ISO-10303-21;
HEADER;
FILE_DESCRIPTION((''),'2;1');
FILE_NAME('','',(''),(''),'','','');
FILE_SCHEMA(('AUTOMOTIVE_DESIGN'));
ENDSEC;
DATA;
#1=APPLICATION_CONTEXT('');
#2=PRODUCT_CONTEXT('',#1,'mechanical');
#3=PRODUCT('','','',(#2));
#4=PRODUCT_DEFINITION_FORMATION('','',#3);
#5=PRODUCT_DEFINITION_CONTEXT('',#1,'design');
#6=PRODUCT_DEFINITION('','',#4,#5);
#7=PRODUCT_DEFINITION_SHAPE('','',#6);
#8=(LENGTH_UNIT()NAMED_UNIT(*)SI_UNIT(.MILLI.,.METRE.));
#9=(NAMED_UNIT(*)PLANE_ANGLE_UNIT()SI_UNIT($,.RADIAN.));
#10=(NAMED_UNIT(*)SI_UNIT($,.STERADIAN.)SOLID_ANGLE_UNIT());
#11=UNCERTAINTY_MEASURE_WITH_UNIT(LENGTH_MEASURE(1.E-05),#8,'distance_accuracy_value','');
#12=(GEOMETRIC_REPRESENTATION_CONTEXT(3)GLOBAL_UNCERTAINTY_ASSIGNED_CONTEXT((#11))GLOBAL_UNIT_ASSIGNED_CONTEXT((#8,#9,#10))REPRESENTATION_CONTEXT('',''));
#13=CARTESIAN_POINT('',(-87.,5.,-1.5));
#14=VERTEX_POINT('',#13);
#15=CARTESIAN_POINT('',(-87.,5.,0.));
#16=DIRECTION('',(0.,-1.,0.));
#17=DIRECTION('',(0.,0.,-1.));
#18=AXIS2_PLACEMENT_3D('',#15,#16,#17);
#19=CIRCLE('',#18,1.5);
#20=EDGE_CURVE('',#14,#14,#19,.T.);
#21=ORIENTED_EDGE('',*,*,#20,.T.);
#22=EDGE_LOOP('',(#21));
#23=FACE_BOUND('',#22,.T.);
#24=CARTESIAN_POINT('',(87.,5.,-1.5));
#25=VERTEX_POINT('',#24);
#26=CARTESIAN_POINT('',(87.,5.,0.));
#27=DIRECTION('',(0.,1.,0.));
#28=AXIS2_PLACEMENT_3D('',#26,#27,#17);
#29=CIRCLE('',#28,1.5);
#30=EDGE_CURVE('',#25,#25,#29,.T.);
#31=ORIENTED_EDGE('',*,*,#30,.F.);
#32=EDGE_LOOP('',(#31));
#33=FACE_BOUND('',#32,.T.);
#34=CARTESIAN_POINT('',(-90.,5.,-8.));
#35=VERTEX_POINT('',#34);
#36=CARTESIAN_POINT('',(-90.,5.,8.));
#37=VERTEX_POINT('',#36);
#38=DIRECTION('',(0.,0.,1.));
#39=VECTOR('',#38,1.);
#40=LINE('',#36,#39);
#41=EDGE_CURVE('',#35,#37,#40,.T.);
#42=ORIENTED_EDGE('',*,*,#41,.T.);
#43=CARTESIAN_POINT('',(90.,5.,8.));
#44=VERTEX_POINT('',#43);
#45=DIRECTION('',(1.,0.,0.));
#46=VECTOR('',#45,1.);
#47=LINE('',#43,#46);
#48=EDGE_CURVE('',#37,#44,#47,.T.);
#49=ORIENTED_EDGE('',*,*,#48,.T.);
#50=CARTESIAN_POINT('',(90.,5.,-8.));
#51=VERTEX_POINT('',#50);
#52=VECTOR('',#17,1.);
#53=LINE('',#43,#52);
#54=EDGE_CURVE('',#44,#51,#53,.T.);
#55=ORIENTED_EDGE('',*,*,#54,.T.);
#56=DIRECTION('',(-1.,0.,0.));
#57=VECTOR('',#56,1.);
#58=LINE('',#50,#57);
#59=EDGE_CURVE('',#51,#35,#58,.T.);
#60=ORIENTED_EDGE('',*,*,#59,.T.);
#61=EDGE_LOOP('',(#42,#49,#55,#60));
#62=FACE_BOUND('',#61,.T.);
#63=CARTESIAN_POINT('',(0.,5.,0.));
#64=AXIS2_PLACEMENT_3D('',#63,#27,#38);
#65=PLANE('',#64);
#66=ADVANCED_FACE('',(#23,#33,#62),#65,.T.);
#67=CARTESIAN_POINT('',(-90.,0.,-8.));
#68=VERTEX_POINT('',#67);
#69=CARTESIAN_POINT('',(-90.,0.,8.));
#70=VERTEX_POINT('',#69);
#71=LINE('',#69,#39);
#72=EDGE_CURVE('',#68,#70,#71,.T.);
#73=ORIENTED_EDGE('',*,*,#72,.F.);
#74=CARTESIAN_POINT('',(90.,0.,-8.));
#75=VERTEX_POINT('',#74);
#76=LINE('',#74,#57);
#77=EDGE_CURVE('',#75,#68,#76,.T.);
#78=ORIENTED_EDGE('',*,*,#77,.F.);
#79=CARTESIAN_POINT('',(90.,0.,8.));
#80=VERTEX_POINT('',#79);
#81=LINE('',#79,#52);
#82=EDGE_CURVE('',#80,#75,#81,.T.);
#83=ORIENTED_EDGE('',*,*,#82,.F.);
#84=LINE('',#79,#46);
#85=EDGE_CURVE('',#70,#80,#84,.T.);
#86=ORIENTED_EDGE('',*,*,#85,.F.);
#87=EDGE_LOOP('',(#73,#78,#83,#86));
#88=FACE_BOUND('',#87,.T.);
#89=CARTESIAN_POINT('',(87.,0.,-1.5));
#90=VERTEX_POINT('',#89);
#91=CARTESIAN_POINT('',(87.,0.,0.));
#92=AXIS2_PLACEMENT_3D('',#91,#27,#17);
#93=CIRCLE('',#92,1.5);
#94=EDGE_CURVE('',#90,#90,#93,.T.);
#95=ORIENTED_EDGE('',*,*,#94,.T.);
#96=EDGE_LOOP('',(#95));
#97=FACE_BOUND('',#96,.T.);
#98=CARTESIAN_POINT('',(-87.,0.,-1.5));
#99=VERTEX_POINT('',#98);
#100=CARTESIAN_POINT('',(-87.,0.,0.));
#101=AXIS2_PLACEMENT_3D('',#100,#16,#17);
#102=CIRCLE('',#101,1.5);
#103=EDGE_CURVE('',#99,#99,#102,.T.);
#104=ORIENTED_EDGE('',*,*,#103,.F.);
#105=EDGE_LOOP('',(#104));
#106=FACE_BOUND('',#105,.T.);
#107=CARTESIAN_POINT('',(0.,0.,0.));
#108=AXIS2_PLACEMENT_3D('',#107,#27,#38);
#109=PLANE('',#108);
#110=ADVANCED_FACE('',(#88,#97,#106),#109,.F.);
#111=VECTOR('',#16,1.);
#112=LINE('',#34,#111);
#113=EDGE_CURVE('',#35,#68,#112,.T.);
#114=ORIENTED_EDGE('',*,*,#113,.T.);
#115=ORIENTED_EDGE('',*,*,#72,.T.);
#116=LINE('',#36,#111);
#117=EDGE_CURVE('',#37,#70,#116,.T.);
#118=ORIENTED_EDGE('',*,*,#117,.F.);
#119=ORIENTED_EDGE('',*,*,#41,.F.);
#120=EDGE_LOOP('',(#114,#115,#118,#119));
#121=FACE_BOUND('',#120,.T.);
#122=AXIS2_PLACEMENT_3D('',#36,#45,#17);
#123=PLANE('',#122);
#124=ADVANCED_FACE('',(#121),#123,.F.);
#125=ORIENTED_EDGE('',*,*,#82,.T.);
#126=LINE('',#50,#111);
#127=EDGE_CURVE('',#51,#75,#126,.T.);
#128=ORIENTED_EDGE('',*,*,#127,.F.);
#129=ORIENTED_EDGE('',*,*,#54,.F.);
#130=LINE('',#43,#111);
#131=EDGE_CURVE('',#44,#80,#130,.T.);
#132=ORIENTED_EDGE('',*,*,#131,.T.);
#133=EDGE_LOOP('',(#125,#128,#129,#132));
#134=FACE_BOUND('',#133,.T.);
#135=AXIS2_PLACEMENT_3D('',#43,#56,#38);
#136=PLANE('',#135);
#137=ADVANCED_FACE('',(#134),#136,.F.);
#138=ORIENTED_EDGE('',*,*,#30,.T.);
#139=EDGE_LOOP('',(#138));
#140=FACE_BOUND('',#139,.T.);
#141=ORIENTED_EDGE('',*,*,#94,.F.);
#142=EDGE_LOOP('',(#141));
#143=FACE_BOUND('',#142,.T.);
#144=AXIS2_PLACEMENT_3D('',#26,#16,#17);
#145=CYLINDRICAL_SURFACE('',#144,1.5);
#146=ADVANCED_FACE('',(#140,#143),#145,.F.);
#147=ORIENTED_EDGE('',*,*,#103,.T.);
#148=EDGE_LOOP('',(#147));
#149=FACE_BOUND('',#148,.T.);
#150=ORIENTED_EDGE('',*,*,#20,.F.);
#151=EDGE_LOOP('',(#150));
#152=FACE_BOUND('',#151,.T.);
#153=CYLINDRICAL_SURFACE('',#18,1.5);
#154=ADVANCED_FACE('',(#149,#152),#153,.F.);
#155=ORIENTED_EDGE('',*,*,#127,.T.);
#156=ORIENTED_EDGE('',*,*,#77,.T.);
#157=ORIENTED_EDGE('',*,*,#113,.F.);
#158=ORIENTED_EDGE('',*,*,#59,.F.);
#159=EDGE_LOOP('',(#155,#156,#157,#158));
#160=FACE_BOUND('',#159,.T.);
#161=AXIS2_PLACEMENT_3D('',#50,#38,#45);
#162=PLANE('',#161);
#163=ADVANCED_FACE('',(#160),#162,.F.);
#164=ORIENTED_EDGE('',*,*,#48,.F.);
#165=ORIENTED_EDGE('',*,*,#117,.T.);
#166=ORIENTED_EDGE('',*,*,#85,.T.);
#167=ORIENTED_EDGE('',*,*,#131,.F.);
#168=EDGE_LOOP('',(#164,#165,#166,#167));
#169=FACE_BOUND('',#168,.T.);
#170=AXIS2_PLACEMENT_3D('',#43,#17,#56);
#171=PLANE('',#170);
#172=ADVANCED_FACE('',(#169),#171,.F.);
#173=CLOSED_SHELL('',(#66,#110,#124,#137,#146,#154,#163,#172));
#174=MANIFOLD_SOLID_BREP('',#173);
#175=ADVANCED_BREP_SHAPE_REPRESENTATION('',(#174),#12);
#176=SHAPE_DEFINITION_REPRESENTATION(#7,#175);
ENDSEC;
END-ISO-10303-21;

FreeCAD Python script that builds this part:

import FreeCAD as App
import Part
import Sketcher
Q = App.Units.Quantity

doc = App.newDocument("Part")
params = doc.addObject("Spreadsheet::Sheet", "Params")
for row, (alias, value) in enumerate([
    ("sketch1_width", "180 mm"),
    ("sketch1_height", "16 mm"),
    ("pad1_length", "5 mm"),
    ("sketch2_diameter", "3 mm"),
], start=1):
    params.set(f"A{row}", alias)
    params.set(f"B{row}", "=" + value)
    params.setAlias(f"B{row}", alias)

body = doc.addObject("PartDesign::Body", "Body")

sketch1 = body.newObject("Sketcher::SketchObject", "Sketch")
sketch1.AttachmentSupport = (doc.getObject("XZ_Plane"), [""])
sketch1.MapMode = "FlatFace"
sketch1.addGeometry([
    Part.LineSegment(App.Vector(-90, -8, 0), App.Vector(-90, 8, 0)),
    Part.LineSegment(App.Vector(-90, 8, 0), App.Vector(90, 8, 0)),
    Part.LineSegment(App.Vector(90, 8, 0), App.Vector(90, -8, 0)),
    Part.LineSegment(App.Vector(90, -8, 0), App.Vector(-90, -8, 0)),
], False)
sketch1.addConstraint([
    Sketcher.Constraint("Coincident", 0, 2, 1, 1),
    Sketcher.Constraint("Coincident", 1, 2, 2, 1),
    Sketcher.Constraint("Coincident", 2, 2, 3, 1),
    Sketcher.Constraint("Coincident", 3, 2, 0, 1),
    Sketcher.Constraint("Vertical", 0),
    Sketcher.Constraint("Horizontal", 1),
    Sketcher.Constraint("Vertical", 2),
    Sketcher.Constraint("Horizontal", 3),
    Sketcher.Constraint("Symmetric", 0, 2, 2, 2, -1, 1),
    Sketcher.Constraint("DistanceX", 1, 1, 1, 2, Q("180 mm")),
    Sketcher.Constraint("DistanceY", 0, 1, 0, 2, Q("16 mm")),
])
sketch1.setExpression("Constraints[9]", "Params.sketch1_width")
sketch1.setExpression("Constraints[10]", "Params.sketch1_height")
pad1 = body.newObject("PartDesign::Pad", "Pad")
pad1.Profile = sketch1
pad1.setExpression("Length", "Params.pad1_length")
pad1.Reversed = True

sketch2 = body.newObject("Sketcher::SketchObject", "Sketch001")
sketch2.AttachmentSupport = (doc.getObject("XZ_Plane"), [""])
sketch2.MapMode = "FlatFace"
sketch2.addGeometry(Part.Circle(App.Vector(-87, 0, 0), App.Vector(0, 0, 1), 1.5), False)
sketch2.addConstraint([
    Sketcher.Constraint("PointOnObject", 0, 3, -1),
    Sketcher.Constraint("Diameter", 0, Q("3 mm")),
    Sketcher.Constraint("DistanceX", 0, 3, -1, 1, Q("87 mm")),
])
sketch2.setExpression("Constraints[1]", "Params.sketch2_diameter")
pocket1 = body.newObject("PartDesign::Pocket", "Pocket")
pocket1.Profile = sketch2
pocket1.Type = "ThroughAll"
doc.recompute()

mirrored = body.newObject("PartDesign::Mirrored", "Mirrored")
mirrored.Originals = [pocket1]
mirrored.MirrorPlane = (doc.getObject("YZ_Plane"), [""])
body.Tip = mirrored

doc.recompute()
